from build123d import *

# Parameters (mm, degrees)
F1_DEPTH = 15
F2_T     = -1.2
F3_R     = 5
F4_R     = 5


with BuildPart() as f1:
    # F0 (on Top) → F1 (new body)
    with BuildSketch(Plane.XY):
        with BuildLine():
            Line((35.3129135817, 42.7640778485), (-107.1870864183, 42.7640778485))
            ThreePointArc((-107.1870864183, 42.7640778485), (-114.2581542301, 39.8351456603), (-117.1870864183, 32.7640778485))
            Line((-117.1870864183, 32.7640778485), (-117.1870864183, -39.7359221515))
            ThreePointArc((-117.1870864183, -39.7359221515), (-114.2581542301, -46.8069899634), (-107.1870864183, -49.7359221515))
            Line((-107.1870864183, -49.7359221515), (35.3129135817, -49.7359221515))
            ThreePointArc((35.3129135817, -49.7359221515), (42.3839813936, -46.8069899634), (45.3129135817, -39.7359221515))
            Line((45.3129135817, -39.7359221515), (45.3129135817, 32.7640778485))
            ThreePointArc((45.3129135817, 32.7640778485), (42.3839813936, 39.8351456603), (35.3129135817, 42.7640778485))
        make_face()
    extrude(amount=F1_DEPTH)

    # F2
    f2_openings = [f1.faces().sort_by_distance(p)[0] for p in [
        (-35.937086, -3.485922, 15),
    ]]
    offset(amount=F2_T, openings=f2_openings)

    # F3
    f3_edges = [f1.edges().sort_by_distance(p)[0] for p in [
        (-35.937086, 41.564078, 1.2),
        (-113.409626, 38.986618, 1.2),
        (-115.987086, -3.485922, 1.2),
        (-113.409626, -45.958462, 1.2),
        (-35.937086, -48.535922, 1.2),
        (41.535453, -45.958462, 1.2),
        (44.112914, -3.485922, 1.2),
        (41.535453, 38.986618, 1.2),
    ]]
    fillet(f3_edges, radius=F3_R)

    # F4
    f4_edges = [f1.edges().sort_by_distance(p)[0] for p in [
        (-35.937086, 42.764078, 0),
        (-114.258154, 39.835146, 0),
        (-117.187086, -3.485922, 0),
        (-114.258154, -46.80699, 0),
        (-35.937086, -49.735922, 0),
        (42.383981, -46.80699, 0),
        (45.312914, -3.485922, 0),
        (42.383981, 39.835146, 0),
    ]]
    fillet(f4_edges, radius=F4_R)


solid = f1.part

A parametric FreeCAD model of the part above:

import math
import FreeCAD as App
import Part
import Sketcher

V = App.Vector
Q = App.Units.Quantity


def edges_at(feature, points):
    """Names of the edges that pass closest to the given points."""
    edges = feature.Shape.Edges
    near = lambda p: min(range(len(edges)), key=lambda i: edges[i].distToShape(Part.Vertex(*p))[0])
    return sorted({f"Edge{near(p) + 1}" for p in points})


def faces_at(feature, points):
    """Names of the faces that lie closest to the given points."""
    faces = feature.Shape.Faces
    near = lambda p: min(range(len(faces)), key=lambda i: faces[i].distToShape(Part.Vertex(*p))[0])
    return sorted({f"Face{near(p) + 1}" for p in points})

doc = App.newDocument("Part")
params = doc.addObject("Spreadsheet::Sheet", "Params")
for row, (alias, value) in enumerate([
    ("sketch1_radius", "10 mm"),
    ("sketch1_width", "142.5 mm"),
    ("sketch1_height", "72.5 mm"),
    ("pad1_length", "15 mm"),
    ("thickness_wall", "1.2 mm"),
    ("fillet_radius", "5 mm"),
    ("fillet2_radius", "5 mm"),
], start=1):
    params.set(f"A{row}", alias)
    params.set(f"B{row}", "=" + value)
    params.setAlias(f"B{row}", alias)

body = doc.addObject("PartDesign::Body", "Body")

sketch1 = doc.addObject("Sketcher::SketchObject", "Sketch")
body.addObject(sketch1)
sketch1.AttachmentSupport = (doc.XY_Plane, [""])
sketch1.MapMode = "FlatFace"
sketch1.addGeometry([
    Part.LineSegment(V(35, 43, 0), V(-107, 43, 0)),
    Part.ArcOfCircle(Part.Circle(V(-107, 33, 0), V(0, 0, 1), 10), math.radians(90), math.radians(180)),
    Part.LineSegment(V(-117, 33, 0), V(-117, -40, 0)),
    Part.ArcOfCircle(Part.Circle(V(-107, -40, 0), V(0, 0, 1), 10), math.radians(180), math.radians(270)),
    Part.LineSegment(V(-107, -50, 0), V(35, -50, 0)),
    Part.ArcOfCircle(Part.Circle(V(35, -40, 0), V(0, 0, 1), 10), math.radians(-90), math.radians(0)),
    Part.LineSegment(V(45, -40, 0), V(45, 33, 0)),
    Part.ArcOfCircle(Part.Circle(V(35, 33, 0), V(0, 0, 1), 10), math.radians(0), math.radians(90)),
], False)
sketch1.addConstraint([
    Sketcher.Constraint("Tangent", 0, 2, 1, 1),
    Sketcher.Constraint("Tangent", 1, 2, 2, 1),
    Sketcher.Constraint("Tangent", 2, 2, 3, 1),
    Sketcher.Constraint("Tangent", 3, 2, 4, 1),
    Sketcher.Constraint("Tangent", 4, 2, 5, 1),
    Sketcher.Constraint("Tangent", 5, 2, 6, 1),
    Sketcher.Constraint("Tangent", 6, 2, 7, 1),
    Sketcher.Constraint("Tangent", 7, 2, 0, 1),
    Sketcher.Constraint("Horizontal", 0),
    Sketcher.Constraint("Vertical", 2),
    Sketcher.Constraint("Horizontal", 4),
    Sketcher.Constraint("Vertical", 6),
    Sketcher.Constraint("Equal", 1, 3),
    Sketcher.Constraint("Equal", 3, 5),
    Sketcher.Constraint("Equal", 5, 7),
    Sketcher.Constraint("Radius", 1, Q("10 mm")),
    Sketcher.Constraint("DistanceX", 0, 2, 0, 1, Q("142.5 mm")),
    Sketcher.Constraint("DistanceY", 2, 2, 2, 1, Q("72.5 mm")),
    Sketcher.Constraint("DistanceX", 1, 3, -1, 1, Q("107.187086 mm")),
    Sketcher.Constraint("DistanceY", -1, 1, 1, 3, Q("32.764078 mm")),
])
sketch1.setExpression("Constraints[15]", "Params.sketch1_radius")
sketch1.setExpression("Constraints[16]", "Params.sketch1_width")
sketch1.setExpression("Constraints[17]", "Params.sketch1_height")
pad1 = doc.addObject("PartDesign::Pad", "Pad")
body.addObject(pad1)
pad1.Profile = sketch1
pad1.setExpression("Length", "Params.pad1_length")
doc.recompute()

thickness = doc.addObject("PartDesign::Thickness", "Thickness")
body.addObject(thickness)
thickness.Base = (pad1, faces_at(pad1, [(-35.937, -3.486, 15)]))
thickness.setExpression("Value", "Params.thickness_wall")
thickness.Reversed = True
thickness.Join = "Arc"
doc.recompute()

fillet = doc.addObject("PartDesign::Fillet", "Fillet")
body.addObject(fillet)
fillet.Base = (thickness, edges_at(thickness, [
    (-35.937, 41.564, 1.2),
    (-113.41, 38.987, 1.2),
    (-115.987, -3.486, 1.2),
    (-113.41, -45.958, 1.2),
    (-35.937, -48.536, 1.2),
    (41.535, -45.958, 1.2),
    (44.113, -3.486, 1.2),
    (41.535, 38.987, 1.2),
]))
fillet.setExpression("Radius", "Params.fillet_radius")
doc.recompute()

fillet2 = doc.addObject("PartDesign::Fillet", "Fillet001")
body.addObject(fillet2)
fillet2.Base = (fillet, edges_at(fillet, [
    (-35.937, 42.764, 0),
    (-114.258, 39.835, 0),
    (-117.187, -3.486, 0),
    (-114.258, -46.807, 0),
    (-35.937, -49.736, 0),
    (42.384, -46.807, 0),
    (45.313, -3.486, 0),
    (42.384, 39.835, 0),
]))
fillet2.setExpression("Radius", "Params.fillet2_radius")

doc.recompute()
